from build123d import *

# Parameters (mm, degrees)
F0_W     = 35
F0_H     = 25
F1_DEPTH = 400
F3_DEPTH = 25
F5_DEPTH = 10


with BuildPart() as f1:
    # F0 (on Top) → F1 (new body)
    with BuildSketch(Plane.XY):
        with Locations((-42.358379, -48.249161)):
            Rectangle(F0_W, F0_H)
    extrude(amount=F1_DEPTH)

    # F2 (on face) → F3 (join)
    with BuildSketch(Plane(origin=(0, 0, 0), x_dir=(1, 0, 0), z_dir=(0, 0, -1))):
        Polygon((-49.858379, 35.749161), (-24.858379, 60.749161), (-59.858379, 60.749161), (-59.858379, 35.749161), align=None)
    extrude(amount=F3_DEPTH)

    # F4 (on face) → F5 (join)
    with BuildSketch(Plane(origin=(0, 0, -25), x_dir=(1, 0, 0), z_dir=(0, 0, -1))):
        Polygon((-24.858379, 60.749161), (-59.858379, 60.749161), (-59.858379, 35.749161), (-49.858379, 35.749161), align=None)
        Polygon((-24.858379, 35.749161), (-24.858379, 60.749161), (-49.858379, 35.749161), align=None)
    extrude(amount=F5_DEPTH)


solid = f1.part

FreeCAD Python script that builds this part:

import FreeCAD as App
import Part
import Sketcher

V = App.Vector

doc = App.newDocument("Part")
body = doc.addObject("PartDesign::Body", "Body")

# Sketch on XY plane
sketch1 = body.newObject("Sketcher::SketchObject", "Sketch")
sketch1.AttachmentSupport = (doc.getObject("XY_Plane"), [""])
sketch1.MapMode = "FlatFace"
sketch1.addGeometry(Part.LineSegment(V(-60, -36, 0), V(-60, -61, 0)), False)
sketch1.addGeometry(Part.LineSegment(V(-60, -61, 0), V(-25, -61, 0)), False)
sketch1.addGeometry(Part.LineSegment(V(-25, -61, 0), V(-25, -36, 0)), False)
sketch1.addGeometry(Part.LineSegment(V(-25, -36, 0), V(-60, -36, 0)), False)
sketch1.addConstraint(Sketcher.Constraint("Coincident", 0, 2, 1, 1))
sketch1.addConstraint(Sketcher.Constraint("Coincident", 1, 2, 2, 1))
sketch1.addConstraint(Sketcher.Constraint("Coincident", 2, 2, 3, 1))
sketch1.addConstraint(Sketcher.Constraint("Coincident", 3, 2, 0, 1))
sketch1.addConstraint(Sketcher.Constraint("Vertical", 0))
sketch1.addConstraint(Sketcher.Constraint("Horizontal", 1))
sketch1.addConstraint(Sketcher.Constraint("Vertical", 2))
sketch1.addConstraint(Sketcher.Constraint("Horizontal", 3))
sketch1.addConstraint(Sketcher.Constraint("DistanceX", 1, 1, 1, 2, 35.0))
sketch1.addConstraint(Sketcher.Constraint("DistanceY", 0, 2, 0, 1, 25.0))
sketch1.addConstraint(Sketcher.Constraint("DistanceX", 0, 2, -1, 1, 59.858379))
sketch1.addConstraint(Sketcher.Constraint("DistanceY", 0, 2, -1, 1, 60.749161))
pad1 = body.newObject("PartDesign::Pad", "Pad")
pad1.Profile = sketch1
pad1.Length = 400

# Sketch on XY plane
sketch2 = body.newObject("Sketcher::SketchObject", "Sketch001")
sketch2.AttachmentSupport = (doc.getObject("XY_Plane"), [""])
sketch2.MapMode = "FlatFace"
sketch2.addGeometry(Part.LineSegment(V(-50, -36, 0), V(-25, -61, 0)), False)
sketch2.addGeometry(Part.LineSegment(V(-25, -61, 0), V(-60, -61, 0)), False)
sketch2.addGeometry(Part.LineSegment(V(-60, -61, 0), V(-60, -36, 0)), False)
sketch2.addGeometry(Part.LineSegment(V(-60, -36, 0), V(-50, -36, 0)), False)
sketch2.addConstraint(Sketcher.Constraint("Coincident", 0, 2, 1, 1))
sketch2.addConstraint(Sketcher.Constraint("Coincident", 1, 2, 2, 1))
sketch2.addConstraint(Sketcher.Constraint("Coincident", 2, 2, 3, 1))
sketch2.addConstraint(Sketcher.Constraint("Coincident", 3, 2, 0, 1))
sketch2.addConstraint(Sketcher.Constraint("Horizontal", 1))
sketch2.addConstraint(Sketcher.Constraint("Vertical", 2))
sketch2.addConstraint(Sketcher.Constraint("Horizontal", 3))
sketch2.addConstraint(Sketcher.Constraint("DistanceX", 1, 2, 1, 1, 35.0))
sketch2.addConstraint(Sketcher.Constraint("DistanceX", 3, 1, 3, 2, 10.0))
sketch2.addConstraint(Sketcher.Constraint("DistanceY", 2, 1, 2, 2, 25.0))
sketch2.addConstraint(Sketcher.Constraint("DistanceX", 0, 2, -1, 1, 24.858379))
sketch2.addConstraint(Sketcher.Constraint("DistanceY", 0, 2, -1, 1, 60.749161))
pad2 = body.newObject("PartDesign::Pad", "Pad001")
pad2.Profile = sketch2
pad2.Length = 25
pad2.Reversed = True

# Sketch on XY plane
sketch3 = body.newObject("Sketcher::SketchObject", "Sketch002")
sketch3.AttachmentSupport = (doc.getObject("XY_Plane"), [""])
sketch3.MapMode = "FlatFace"
sketch3.AttachmentOffset = App.Placement(V(0, 0, -25), App.Rotation())
sketch3.addGeometry(Part.LineSegment(V(-25, -61, 0), V(-60, -61, 0)), False)
sketch3.addGeometry(Part.LineSegment(V(-60, -61, 0), V(-60, -36, 0)), False)
sketch3.addGeometry(Part.LineSegment(V(-60, -36, 0), V(-25, -36, 0)), False)
sketch3.addGeometry(Part.LineSegment(V(-25, -36, 0), V(-25, -61, 0)), False)
sketch3.addConstraint(Sketcher.Constraint("Coincident", 0, 2, 1, 1))
sketch3.addConstraint(Sketcher.Constraint("Coincident", 1, 2, 2, 1))
sketch3.addConstraint(Sketcher.Constraint("Coincident", 2, 2, 3, 1))
sketch3.addConstraint(Sketcher.Constraint("Coincident", 3, 2, 0, 1))
sketch3.addConstraint(Sketcher.Constraint("Horizontal", 0))
sketch3.addConstraint(Sketcher.Constraint("Vertical", 1))
sketch3.addConstraint(Sketcher.Constraint("Horizontal", 2))
sketch3.addConstraint(Sketcher.Constraint("Vertical", 3))
sketch3.addConstraint(Sketcher.Constraint("DistanceX", 0, 2, 0, 1, 35.0))
sketch3.addConstraint(Sketcher.Constraint("DistanceY", 1, 1, 1, 2, 25.0))
sketch3.addConstraint(Sketcher.Constraint("DistanceX", 0, 2, -1, 1, 59.858379))
sketch3.addConstraint(Sketcher.Constraint("DistanceY", 0, 2, -1, 1, 60.749161))
pad3 = body.newObject("PartDesign::Pad", "Pad002")
pad3.Profile = sketch3
pad3.Length = 10
pad3.Reversed = True

doc.recompute()
